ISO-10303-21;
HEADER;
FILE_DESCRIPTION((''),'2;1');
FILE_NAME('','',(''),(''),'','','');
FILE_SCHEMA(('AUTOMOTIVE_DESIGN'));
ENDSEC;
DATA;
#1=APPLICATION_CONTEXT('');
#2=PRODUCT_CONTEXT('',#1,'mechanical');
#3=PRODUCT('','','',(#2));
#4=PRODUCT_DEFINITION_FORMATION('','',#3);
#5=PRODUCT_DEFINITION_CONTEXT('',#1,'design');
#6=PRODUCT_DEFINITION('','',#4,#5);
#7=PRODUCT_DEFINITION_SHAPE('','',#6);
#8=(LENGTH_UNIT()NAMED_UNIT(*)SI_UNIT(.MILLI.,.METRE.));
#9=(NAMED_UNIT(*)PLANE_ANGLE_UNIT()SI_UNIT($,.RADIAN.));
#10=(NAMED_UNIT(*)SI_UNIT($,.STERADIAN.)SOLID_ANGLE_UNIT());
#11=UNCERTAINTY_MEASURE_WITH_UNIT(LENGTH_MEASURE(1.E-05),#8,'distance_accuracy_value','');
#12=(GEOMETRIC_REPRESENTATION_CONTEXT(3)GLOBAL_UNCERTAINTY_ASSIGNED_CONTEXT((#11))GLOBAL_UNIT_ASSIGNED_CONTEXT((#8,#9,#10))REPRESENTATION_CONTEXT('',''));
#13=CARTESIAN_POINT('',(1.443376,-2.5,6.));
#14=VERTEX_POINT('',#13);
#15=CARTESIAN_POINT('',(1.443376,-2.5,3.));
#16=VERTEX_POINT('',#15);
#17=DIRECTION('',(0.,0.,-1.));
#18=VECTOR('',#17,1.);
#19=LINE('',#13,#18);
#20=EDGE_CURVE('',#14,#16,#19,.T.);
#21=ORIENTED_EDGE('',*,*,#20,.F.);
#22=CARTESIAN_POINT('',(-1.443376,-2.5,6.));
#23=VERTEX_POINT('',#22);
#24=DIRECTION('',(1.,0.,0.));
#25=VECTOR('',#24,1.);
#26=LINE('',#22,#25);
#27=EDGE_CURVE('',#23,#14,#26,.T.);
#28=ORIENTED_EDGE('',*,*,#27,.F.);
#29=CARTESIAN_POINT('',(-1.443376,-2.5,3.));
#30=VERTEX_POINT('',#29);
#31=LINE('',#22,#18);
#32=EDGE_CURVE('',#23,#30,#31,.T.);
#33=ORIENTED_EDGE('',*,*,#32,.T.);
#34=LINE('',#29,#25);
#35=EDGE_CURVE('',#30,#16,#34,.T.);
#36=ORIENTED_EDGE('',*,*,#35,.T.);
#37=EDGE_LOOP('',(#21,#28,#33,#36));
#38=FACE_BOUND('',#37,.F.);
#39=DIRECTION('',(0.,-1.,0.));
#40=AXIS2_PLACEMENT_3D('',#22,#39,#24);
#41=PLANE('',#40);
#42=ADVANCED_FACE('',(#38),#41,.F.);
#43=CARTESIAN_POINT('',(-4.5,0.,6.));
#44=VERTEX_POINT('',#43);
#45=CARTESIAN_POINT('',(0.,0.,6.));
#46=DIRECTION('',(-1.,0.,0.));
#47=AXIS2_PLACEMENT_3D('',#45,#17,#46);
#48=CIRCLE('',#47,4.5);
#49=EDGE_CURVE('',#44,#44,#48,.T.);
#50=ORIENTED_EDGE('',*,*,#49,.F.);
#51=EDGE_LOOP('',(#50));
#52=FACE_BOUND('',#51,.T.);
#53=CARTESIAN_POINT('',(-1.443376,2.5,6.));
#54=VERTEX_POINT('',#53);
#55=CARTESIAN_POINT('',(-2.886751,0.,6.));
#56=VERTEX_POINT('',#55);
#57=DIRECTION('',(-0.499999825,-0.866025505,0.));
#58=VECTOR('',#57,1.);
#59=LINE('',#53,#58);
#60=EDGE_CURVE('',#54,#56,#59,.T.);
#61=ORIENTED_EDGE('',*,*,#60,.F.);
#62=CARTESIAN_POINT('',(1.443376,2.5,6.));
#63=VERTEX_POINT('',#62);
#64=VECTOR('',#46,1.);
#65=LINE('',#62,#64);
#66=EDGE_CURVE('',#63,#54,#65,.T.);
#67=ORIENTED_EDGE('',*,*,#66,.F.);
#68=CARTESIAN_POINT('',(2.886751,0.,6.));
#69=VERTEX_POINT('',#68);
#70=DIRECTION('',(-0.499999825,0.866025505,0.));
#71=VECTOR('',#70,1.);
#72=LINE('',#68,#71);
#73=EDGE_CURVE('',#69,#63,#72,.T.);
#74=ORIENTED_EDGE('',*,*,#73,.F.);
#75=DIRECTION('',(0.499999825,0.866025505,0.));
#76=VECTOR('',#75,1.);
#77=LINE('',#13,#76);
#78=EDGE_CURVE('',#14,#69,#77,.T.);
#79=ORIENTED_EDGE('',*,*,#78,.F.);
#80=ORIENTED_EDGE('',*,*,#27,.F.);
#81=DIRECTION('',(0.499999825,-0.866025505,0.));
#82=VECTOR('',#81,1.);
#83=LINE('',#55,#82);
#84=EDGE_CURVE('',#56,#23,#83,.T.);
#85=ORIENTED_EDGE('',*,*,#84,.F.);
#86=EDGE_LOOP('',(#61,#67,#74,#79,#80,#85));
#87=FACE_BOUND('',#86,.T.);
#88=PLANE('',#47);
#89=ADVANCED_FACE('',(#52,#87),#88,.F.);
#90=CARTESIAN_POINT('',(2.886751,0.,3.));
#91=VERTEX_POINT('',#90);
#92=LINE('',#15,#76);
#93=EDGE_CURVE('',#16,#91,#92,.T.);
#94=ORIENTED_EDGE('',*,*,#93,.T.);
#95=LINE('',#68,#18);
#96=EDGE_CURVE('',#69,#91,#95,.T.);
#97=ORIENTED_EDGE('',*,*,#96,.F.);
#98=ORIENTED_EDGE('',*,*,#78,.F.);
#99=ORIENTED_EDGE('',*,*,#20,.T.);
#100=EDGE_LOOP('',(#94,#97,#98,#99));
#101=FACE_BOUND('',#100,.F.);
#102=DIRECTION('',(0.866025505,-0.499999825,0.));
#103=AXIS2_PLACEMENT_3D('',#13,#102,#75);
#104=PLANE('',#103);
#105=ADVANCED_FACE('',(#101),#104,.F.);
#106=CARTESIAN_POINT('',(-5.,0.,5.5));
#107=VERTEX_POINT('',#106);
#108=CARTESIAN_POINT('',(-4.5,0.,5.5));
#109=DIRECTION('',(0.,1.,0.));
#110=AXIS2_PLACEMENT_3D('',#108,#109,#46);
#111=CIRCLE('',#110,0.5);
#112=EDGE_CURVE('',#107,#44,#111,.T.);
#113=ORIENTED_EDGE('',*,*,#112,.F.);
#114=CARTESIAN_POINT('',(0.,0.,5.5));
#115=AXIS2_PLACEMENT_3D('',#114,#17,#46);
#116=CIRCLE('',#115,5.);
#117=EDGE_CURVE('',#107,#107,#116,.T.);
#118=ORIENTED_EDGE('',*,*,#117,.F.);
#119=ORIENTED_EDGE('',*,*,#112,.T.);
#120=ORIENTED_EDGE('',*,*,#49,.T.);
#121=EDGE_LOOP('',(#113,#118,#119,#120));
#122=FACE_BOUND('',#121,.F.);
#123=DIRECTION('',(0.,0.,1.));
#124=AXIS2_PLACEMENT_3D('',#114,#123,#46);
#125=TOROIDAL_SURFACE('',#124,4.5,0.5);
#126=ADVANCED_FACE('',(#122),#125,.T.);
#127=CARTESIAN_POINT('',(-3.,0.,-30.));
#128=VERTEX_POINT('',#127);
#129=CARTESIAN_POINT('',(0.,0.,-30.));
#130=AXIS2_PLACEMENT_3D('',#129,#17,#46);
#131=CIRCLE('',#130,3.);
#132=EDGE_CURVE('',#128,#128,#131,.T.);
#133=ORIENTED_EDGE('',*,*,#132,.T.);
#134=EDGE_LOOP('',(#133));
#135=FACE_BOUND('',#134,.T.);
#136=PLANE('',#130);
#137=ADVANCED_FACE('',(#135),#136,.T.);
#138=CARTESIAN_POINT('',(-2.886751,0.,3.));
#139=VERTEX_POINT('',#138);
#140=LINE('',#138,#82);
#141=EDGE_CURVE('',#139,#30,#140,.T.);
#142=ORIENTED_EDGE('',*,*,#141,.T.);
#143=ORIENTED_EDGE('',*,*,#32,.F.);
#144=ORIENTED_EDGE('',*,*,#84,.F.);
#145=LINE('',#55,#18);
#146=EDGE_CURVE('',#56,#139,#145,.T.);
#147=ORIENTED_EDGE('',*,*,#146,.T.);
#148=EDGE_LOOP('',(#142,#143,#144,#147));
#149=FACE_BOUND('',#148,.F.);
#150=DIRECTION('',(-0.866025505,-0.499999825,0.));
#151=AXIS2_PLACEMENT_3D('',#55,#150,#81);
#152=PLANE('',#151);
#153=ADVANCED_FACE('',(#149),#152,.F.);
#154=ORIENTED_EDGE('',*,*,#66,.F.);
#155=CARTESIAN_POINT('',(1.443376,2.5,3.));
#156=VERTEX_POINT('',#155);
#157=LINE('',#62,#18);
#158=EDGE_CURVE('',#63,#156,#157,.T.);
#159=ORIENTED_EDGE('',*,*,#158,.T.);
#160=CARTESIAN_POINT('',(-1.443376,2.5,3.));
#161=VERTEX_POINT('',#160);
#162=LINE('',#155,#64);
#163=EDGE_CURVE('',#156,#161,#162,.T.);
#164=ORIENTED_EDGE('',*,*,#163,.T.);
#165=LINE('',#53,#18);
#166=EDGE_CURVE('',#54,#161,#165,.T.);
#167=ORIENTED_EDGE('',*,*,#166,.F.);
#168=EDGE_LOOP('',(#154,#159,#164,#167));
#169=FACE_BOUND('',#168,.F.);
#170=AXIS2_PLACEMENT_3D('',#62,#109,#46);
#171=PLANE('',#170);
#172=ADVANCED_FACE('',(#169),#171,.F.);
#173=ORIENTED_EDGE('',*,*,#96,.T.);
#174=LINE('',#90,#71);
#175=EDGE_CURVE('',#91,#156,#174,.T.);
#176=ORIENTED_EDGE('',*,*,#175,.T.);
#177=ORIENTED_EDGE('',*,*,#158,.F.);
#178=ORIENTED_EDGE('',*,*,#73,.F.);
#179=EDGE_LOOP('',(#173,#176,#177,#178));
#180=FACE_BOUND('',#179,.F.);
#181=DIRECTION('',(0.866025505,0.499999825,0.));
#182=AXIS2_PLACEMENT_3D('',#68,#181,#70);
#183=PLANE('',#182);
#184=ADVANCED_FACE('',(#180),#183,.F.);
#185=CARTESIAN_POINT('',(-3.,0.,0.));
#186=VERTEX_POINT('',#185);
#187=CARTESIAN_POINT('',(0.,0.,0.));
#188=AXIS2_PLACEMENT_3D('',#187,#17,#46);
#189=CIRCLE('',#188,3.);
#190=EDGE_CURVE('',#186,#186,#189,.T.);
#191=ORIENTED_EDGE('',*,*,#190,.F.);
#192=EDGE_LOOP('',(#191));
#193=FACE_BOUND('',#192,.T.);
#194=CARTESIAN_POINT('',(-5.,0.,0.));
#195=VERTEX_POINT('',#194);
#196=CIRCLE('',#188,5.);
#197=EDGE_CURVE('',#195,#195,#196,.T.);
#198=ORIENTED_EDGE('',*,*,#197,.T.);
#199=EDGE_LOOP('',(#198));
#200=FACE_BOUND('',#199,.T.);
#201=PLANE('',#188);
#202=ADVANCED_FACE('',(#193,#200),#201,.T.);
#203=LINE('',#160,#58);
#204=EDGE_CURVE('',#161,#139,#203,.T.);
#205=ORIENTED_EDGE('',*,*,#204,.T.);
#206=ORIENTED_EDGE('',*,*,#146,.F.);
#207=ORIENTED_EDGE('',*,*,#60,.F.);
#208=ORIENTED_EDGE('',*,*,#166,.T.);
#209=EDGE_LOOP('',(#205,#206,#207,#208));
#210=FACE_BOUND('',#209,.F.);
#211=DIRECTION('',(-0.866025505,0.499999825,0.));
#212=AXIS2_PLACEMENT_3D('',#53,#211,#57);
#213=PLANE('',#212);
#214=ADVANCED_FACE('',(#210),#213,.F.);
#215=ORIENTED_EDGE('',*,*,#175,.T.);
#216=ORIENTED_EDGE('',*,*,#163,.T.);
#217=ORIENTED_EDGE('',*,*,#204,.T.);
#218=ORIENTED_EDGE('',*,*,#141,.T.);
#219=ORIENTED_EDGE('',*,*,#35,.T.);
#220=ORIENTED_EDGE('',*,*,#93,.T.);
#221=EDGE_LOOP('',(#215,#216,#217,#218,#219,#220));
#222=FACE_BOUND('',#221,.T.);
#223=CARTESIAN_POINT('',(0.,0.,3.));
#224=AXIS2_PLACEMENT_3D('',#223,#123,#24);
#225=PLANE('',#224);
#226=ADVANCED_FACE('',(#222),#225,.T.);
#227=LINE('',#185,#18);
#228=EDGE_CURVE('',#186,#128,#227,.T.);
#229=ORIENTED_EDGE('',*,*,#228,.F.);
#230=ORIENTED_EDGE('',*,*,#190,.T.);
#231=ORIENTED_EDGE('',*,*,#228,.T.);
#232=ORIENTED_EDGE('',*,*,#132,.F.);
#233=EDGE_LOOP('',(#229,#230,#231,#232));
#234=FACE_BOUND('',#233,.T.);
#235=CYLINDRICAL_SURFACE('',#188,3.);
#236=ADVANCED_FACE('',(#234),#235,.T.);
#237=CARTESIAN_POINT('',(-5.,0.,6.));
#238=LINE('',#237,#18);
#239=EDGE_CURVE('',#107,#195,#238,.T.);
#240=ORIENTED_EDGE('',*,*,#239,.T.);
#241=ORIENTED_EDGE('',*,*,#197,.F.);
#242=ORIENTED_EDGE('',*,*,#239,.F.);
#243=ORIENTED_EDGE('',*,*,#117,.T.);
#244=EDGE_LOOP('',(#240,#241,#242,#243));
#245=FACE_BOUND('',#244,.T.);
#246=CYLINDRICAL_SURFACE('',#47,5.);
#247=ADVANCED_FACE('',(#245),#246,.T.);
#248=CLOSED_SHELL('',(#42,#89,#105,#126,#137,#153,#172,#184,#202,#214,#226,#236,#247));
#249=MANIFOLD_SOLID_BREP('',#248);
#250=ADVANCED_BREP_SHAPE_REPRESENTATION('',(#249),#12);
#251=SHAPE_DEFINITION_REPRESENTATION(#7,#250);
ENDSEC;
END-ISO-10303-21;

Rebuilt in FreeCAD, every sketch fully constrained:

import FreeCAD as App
import Part
import Sketcher
Q = App.Units.Quantity


def edges_at(feature, points):
    """Names of the edges that pass closest to the given points."""
    edges = feature.Shape.Edges
    near = lambda p: min(range(len(edges)), key=lambda i: edges[i].distToShape(Part.Vertex(*p))[0])
    return sorted({f"Edge{near(p) + 1}" for p in points})


def add_polygon(sketch, points):
    """Adds a closed chain of lines whose ends are joined by coincident constraints."""
    first, n = sketch.GeometryCount, len(points)
    for a, b in zip(points, points[1:] + points[:1]):
        sketch.addGeometry(Part.LineSegment(App.Vector(*a, 0), App.Vector(*b, 0)), False)
    for i in range(n):
        sketch.addConstraint(Sketcher.Constraint("Coincident", first + i, 2, first + (i + 1) % n, 1))

doc = App.newDocument("Part")
body = doc.addObject("PartDesign::Body", "Body")

sketch1 = body.newObject("Sketcher::SketchObject", "Sketch")
sketch1.AttachmentSupport = (doc.getObject("XZ_Plane"), [""])
sketch1.MapMode = "FlatFace"
add_polygon(sketch1, [(-3, -30), (0, -30), (0, 6), (-5, 6), (-5, 0), (-3, 0)])
sketch1.addConstraint([
    Sketcher.Constraint("Horizontal", 0),
    Sketcher.Constraint("Vertical", 1),
    Sketcher.Constraint("Horizontal", 2),
    Sketcher.Constraint("Vertical", 3),
    Sketcher.Constraint("Horizontal", 4),
    Sketcher.Constraint("Vertical", 5),
    Sketcher.Constraint("PointOnObject", 0, 2, -2),
    Sketcher.Constraint("PointOnObject", 3, 2, -1),
    Sketcher.Constraint("DistanceX", 0, 1, 0, 2, 3.0),
    Sketcher.Constraint("DistanceX", 2, 2, 2, 1, 5.0),
    Sketcher.Constraint("DistanceY", 1, 1, 1, 2, 36.0),
    Sketcher.Constraint("DistanceY", 3, 2, 3, 1, 6.0),
])
revolution = body.newObject("PartDesign::Revolution", "Revolution")
revolution.Profile = sketch1
revolution.ReferenceAxis = (sketch1, ["V_Axis"])
revolution.Angle = 360

sketch2 = body.newObject("Sketcher::SketchObject", "Sketch001")
sketch2.AttachmentSupport = (doc.getObject("XY_Plane"), [""])
sketch2.MapMode = "FlatFace"
sketch2.AttachmentOffset = App.Placement(App.Vector(0, 0, 6), App.Rotation())
add_polygon(sketch2, [(1.4, 2.5), (-1.4, 2.5), (-2.9, 0), (-1.4, -2.5), (1.4, -2.5), (2.9, 0)])
sketch2.addConstraint([
    Sketcher.Constraint("Horizontal", 0),
    Sketcher.Constraint("Horizontal", 3),
    Sketcher.Constraint("Symmetric", 0, 2, 3, 2, -1, 1),
    Sketcher.Constraint("Symmetric", 1, 2, 4, 2, -1, 1),
    Sketcher.Constraint("PointOnObject", 1, 2, -1),
    Sketcher.Constraint("Parallel", 2, 5),
    Sketcher.Constraint("Vertical", 0, 2, 2, 2),
    Sketcher.Constraint("Angle", 1, Q("-119.999988 deg")),
    Sketcher.Constraint("DistanceY", 2, 2, 0, 2, 5.0),
    Sketcher.Constraint("DistanceX", 0, 2, 0, 1, 2.886752),
])
pocket1 = body.newObject("PartDesign::Pocket", "Pocket")
pocket1.Profile = sketch2
pocket1.Length = 3
doc.recompute()

fillet = body.newObject("PartDesign::Fillet", "Fillet")
fillet.Base = (pocket1, edges_at(pocket1, [(5, 0, 6)]))
fillet.Radius = 0.5

doc.recompute()
